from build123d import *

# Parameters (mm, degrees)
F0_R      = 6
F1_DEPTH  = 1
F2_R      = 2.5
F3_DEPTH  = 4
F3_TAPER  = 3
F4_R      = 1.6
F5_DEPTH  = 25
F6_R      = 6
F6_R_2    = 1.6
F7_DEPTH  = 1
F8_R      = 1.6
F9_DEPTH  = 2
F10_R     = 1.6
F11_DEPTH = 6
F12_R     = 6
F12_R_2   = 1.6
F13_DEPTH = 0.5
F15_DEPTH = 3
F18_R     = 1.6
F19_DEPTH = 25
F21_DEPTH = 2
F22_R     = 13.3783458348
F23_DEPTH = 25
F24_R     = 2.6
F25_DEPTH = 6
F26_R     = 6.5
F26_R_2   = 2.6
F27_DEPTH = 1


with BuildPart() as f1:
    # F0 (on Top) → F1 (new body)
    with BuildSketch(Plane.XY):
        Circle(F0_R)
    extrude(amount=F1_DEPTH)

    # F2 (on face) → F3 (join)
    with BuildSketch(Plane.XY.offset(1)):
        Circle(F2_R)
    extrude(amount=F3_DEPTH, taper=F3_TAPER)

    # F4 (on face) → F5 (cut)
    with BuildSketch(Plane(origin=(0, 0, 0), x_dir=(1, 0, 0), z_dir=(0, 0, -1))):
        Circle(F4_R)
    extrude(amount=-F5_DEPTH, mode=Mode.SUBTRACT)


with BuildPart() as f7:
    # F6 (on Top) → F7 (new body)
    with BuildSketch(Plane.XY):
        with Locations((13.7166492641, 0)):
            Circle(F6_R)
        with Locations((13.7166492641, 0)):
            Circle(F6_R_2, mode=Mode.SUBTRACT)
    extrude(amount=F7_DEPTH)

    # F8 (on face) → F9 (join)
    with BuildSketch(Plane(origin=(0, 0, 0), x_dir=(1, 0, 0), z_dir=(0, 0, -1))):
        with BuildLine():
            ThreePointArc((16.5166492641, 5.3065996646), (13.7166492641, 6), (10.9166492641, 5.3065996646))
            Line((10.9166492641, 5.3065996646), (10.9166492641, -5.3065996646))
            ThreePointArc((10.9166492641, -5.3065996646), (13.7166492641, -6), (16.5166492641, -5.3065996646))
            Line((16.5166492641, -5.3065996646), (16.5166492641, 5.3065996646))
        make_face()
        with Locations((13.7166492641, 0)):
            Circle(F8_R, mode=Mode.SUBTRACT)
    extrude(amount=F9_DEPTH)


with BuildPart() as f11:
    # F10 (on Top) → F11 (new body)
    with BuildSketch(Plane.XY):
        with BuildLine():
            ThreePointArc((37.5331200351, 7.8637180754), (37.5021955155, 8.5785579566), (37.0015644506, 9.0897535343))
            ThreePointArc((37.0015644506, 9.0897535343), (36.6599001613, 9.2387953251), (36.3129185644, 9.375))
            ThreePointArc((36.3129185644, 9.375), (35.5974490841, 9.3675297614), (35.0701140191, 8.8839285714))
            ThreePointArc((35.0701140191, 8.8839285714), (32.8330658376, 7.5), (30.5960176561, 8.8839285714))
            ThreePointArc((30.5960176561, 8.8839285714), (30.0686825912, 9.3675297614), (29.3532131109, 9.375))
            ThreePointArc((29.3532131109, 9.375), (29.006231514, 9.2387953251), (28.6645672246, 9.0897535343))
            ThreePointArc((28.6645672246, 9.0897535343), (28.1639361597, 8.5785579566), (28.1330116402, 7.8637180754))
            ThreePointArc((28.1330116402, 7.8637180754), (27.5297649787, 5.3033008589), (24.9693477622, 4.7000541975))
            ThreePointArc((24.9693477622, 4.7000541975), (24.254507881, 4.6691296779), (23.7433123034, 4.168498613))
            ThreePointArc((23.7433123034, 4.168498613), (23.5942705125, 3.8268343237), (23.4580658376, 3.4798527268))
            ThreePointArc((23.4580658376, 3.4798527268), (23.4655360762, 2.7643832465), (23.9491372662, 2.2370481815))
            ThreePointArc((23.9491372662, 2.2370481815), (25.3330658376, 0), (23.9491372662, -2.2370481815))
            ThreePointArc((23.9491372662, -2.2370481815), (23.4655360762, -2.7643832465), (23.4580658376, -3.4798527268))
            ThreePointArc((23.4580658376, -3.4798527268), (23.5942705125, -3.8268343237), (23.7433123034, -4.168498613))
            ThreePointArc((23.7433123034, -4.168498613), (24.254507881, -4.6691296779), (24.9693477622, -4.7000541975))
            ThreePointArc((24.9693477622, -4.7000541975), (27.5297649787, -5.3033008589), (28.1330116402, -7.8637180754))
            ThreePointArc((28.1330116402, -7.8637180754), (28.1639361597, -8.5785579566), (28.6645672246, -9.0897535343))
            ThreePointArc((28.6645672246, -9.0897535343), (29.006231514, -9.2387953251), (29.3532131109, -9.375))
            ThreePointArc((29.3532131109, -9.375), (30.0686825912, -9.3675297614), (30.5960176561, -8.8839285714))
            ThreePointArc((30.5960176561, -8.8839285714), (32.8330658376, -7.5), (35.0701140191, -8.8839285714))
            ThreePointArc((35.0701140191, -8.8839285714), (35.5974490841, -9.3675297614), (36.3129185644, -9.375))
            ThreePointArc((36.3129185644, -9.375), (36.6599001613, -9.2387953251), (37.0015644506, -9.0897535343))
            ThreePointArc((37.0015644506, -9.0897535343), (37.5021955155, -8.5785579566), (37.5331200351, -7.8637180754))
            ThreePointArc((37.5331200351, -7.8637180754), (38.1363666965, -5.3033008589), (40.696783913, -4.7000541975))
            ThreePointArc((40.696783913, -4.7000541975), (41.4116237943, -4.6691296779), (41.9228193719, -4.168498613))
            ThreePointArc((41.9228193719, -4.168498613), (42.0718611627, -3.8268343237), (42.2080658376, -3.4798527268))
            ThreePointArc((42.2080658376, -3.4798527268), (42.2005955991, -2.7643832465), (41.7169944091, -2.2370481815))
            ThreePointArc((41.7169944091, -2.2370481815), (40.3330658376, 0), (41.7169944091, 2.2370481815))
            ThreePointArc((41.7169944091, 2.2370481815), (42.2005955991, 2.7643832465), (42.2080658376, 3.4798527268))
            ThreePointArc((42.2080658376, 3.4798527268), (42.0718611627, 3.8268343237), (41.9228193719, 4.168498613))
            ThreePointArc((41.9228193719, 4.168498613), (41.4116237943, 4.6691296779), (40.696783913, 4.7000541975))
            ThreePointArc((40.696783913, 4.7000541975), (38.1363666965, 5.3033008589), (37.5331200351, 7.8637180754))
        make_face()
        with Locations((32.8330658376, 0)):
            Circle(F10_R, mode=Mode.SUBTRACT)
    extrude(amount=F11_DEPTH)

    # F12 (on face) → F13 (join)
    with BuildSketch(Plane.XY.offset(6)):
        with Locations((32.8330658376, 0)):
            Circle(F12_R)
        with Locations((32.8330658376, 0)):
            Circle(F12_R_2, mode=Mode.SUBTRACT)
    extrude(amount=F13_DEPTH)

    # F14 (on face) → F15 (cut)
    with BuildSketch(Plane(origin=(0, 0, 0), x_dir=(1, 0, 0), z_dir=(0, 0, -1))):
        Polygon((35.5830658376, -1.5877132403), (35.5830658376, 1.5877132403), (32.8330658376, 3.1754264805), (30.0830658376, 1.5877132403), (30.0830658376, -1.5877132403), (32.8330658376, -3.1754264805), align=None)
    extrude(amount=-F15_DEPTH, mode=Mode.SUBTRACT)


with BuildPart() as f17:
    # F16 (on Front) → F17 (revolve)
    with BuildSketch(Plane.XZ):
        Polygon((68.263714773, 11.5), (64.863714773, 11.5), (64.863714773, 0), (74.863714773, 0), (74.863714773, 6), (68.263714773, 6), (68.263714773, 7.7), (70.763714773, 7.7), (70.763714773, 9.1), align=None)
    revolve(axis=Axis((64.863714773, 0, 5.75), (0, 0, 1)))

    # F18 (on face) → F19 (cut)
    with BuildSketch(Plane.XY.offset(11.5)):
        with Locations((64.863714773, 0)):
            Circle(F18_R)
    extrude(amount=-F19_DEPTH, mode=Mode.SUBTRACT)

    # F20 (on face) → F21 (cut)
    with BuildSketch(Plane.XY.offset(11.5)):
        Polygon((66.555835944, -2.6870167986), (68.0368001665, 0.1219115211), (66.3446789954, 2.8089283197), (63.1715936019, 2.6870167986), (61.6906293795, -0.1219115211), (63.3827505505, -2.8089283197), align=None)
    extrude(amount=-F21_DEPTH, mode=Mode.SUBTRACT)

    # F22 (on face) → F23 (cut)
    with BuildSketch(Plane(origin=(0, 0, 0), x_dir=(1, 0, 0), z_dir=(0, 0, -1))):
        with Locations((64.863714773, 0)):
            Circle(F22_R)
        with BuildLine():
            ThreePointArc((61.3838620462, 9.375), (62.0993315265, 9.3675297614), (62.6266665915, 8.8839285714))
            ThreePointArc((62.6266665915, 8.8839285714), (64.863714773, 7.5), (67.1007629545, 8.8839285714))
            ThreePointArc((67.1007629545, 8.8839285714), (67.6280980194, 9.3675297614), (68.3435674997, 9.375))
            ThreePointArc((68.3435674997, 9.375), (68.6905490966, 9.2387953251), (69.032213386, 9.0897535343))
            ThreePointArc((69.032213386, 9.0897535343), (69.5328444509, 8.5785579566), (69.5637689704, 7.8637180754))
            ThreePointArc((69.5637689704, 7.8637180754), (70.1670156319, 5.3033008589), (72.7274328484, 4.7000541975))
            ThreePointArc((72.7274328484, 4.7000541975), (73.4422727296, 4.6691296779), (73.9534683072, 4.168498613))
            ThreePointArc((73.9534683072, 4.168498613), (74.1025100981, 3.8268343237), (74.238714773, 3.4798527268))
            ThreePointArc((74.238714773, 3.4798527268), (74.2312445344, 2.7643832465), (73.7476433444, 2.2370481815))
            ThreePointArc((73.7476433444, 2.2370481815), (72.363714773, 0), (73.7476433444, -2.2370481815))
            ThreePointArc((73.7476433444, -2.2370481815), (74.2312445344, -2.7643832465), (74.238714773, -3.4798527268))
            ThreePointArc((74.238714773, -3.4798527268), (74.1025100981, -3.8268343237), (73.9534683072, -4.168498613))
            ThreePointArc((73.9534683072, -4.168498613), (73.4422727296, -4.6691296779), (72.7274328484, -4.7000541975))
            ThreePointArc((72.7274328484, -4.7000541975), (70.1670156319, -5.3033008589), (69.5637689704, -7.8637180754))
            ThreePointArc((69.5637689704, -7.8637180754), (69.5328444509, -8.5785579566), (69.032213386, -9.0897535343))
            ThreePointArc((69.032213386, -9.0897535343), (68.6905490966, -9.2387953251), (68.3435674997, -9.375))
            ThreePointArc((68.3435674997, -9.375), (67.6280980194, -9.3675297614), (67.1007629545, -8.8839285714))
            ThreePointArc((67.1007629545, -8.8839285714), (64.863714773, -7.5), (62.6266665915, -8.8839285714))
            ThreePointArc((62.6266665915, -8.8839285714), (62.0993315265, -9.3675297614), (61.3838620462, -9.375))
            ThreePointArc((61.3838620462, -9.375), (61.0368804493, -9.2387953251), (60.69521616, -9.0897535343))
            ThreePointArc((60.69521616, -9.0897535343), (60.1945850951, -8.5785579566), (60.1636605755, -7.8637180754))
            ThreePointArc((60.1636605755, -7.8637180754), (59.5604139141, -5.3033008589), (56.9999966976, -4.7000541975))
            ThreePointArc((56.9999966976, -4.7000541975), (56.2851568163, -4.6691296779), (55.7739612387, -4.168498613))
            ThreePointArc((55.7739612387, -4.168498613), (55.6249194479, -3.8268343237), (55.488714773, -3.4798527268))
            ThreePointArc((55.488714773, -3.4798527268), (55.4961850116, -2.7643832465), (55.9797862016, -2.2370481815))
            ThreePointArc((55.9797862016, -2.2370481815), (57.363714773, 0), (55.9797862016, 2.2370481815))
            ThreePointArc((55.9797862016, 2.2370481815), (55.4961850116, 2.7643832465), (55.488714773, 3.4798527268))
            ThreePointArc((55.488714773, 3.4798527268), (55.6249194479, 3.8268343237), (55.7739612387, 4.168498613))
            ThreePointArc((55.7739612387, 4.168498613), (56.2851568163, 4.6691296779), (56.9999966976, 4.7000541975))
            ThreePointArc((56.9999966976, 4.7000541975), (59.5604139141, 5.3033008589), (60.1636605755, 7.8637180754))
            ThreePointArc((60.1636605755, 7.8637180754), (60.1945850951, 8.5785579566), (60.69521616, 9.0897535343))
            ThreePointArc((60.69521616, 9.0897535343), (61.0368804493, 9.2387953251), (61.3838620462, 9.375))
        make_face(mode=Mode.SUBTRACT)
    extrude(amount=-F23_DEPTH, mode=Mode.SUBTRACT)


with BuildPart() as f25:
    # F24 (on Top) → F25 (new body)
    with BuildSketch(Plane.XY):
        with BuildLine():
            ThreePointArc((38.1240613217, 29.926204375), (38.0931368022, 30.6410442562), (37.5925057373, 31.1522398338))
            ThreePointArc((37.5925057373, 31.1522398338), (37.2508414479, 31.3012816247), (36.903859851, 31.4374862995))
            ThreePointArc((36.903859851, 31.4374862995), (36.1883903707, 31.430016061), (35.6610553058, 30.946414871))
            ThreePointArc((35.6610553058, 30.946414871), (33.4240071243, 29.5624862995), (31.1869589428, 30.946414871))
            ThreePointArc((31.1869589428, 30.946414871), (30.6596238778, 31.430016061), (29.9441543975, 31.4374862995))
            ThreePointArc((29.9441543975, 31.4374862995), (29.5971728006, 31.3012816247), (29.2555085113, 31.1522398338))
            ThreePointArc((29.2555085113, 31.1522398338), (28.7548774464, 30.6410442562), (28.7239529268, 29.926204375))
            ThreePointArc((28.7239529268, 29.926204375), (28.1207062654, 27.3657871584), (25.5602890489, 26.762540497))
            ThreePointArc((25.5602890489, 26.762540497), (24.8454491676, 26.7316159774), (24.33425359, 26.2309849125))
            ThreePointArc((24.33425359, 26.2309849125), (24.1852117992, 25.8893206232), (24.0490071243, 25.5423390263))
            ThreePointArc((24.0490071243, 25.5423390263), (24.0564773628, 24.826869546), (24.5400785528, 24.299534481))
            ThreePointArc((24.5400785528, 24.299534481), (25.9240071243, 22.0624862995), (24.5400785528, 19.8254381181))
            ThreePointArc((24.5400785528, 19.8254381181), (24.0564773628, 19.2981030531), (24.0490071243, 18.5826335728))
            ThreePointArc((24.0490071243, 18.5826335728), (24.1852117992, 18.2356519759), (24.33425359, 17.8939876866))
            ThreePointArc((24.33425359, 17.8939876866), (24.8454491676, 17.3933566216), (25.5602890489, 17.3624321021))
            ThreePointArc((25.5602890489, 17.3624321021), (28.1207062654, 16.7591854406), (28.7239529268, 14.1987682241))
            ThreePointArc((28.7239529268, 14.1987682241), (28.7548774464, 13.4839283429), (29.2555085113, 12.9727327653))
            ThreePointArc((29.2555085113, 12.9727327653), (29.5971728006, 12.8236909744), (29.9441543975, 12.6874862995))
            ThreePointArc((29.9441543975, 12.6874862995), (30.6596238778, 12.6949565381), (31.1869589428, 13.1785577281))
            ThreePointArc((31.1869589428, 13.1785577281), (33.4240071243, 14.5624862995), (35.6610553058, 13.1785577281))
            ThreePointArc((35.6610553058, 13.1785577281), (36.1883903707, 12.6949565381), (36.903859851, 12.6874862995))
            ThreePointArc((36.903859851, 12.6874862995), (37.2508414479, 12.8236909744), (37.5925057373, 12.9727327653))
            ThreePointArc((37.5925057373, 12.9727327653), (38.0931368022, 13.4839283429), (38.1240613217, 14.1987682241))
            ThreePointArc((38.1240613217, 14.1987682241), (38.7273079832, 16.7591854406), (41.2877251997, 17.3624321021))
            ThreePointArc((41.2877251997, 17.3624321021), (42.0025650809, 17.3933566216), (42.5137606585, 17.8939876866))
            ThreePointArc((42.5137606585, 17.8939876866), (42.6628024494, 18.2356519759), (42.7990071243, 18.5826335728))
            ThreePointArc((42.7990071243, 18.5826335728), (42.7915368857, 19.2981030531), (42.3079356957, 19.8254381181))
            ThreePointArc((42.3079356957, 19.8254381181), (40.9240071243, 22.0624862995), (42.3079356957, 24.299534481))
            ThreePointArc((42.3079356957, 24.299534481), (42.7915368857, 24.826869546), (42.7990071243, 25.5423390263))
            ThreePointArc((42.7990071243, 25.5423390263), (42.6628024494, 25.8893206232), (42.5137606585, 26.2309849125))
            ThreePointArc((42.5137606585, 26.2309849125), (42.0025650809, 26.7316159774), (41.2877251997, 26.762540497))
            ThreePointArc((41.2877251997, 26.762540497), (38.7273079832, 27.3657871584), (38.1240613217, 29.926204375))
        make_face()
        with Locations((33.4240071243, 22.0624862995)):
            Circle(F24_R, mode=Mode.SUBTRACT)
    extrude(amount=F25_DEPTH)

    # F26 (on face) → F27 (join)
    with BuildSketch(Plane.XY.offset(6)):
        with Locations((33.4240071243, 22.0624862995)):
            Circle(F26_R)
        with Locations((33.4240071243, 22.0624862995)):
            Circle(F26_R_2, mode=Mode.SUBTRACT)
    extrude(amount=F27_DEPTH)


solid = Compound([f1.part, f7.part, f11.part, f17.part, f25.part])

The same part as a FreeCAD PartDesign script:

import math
import FreeCAD as App
import Part
import Sketcher

V = App.Vector
Q = App.Units.Quantity


def add_polygon(sketch, points):
    """Adds a closed chain of lines whose ends are joined by coincident constraints."""
    first, n = sketch.GeometryCount, len(points)
    for a, b in zip(points, points[1:] + points[:1]):
        sketch.addGeometry(Part.LineSegment(App.Vector(*a, 0), App.Vector(*b, 0)), False)
    for i in range(n):
        sketch.addConstraint(Sketcher.Constraint("Coincident", first + i, 2, first + (i + 1) % n, 1))

doc = App.newDocument("Part")
body = doc.addObject("PartDesign::Body", "Body")

# Sketch on XY plane
sketch1 = body.newObject("Sketcher::SketchObject", "Sketch")
sketch1.AttachmentSupport = (doc.getObject("XY_Plane"), [""])
sketch1.MapMode = "FlatFace"
sketch1.addGeometry(Part.Circle(V(0, 0, 0), V(0, 0, 1), 6), False)
sketch1.addConstraint([
    Sketcher.Constraint("Coincident", 0, 3, -1, 1),
    Sketcher.Constraint("Diameter", 0, 12.0),
])
pad1 = body.newObject("PartDesign::Pad", "Pad")
pad1.Profile = sketch1
pad1.Length = 1

# Sketch on XY plane
sketch2 = body.newObject("Sketcher::SketchObject", "Sketch001")
sketch2.AttachmentSupport = (doc.getObject("XY_Plane"), [""])
sketch2.MapMode = "FlatFace"
sketch2.AttachmentOffset = App.Placement(V(0, 0, 1), App.Rotation())
sketch2.addGeometry(Part.Circle(V(0, 0, 0), V(0, 0, 1), 2.5), False)
sketch2.addConstraint([
    Sketcher.Constraint("Coincident", 0, 3, -1, 1),
    Sketcher.Constraint("Diameter", 0, 5.0),
])
pad2 = body.newObject("PartDesign::Pad", "Pad001")
pad2.Profile = sketch2
pad2.Length = 4
pad2.TaperAngle = -3

# Sketch on XY plane
sketch3 = body.newObject("Sketcher::SketchObject", "Sketch002")
sketch3.AttachmentSupport = (doc.getObject("XY_Plane"), [""])
sketch3.MapMode = "FlatFace"
sketch3.addGeometry(Part.Circle(V(0, 0, 0), V(0, 0, 1), 1.6), False)
sketch3.addConstraint([
    Sketcher.Constraint("Coincident", 0, 3, -1, 1),
    Sketcher.Constraint("Diameter", 0, 3.2),
])
pocket1 = body.newObject("PartDesign::Pocket", "Pocket")
pocket1.Profile = sketch3
pocket1.Length = 25
pocket1.Reversed = True
body2 = doc.addObject("PartDesign::Body", "Body001")

# Sketch on XY plane
sketch4 = body2.newObject("Sketcher::SketchObject", "Sketch003")
sketch4.AttachmentSupport = (doc.getObject("XY_Plane001"), [""])
sketch4.MapMode = "FlatFace"
sketch4.addGeometry([
    Part.Circle(V(13.716649, 0, 0), V(0, 0, 1), 6),
    Part.Circle(V(13.716649, 0, 0), V(0, 0, 1), 1.6),
], False)
sketch4.addConstraint([
    Sketcher.Constraint("Coincident", 1, 3, 0, 3),
    Sketcher.Constraint("PointOnObject", 0, 3, -1),
    Sketcher.Constraint("Diameter", 0, 12.0),
    Sketcher.Constraint("Diameter", 1, 3.2),
    Sketcher.Constraint("DistanceX", -1, 1, 0, 3, 13.716649),
])
pad3 = body2.newObject("PartDesign::Pad", "Pad002")
pad3.Profile = sketch4
pad3.Length = 1

# Sketch on XY plane
sketch5 = body2.newObject("Sketcher::SketchObject", "Sketch004")
sketch5.AttachmentSupport = (doc.getObject("XY_Plane001"), [""])
sketch5.MapMode = "FlatFace"
sketch5.addGeometry([
    Part.ArcOfCircle(Part.Circle(V(13.716649, 0, 0), V(0, 0, 1), 6), math.radians(-117.818139), math.radians(-62.181861)),  # 0
    Part.LineSegment(V(10.916649, -5.3066, 0), V(10.916649, 5.3066, 0)),  # 1
    Part.ArcOfCircle(Part.Circle(V(13.716649, 0, 0), V(0, 0, 1), 6), math.radians(62.181861), math.radians(117.818139)),  # 2
    Part.LineSegment(V(16.516649, 5.3066, 0), V(16.516649, -5.3066, 0)),  # 3
    Part.Circle(V(13.716649, 0, 0), V(0, 0, 1), 1.6),  # 4
], False)
sketch5.addConstraint([
    Sketcher.Constraint("Coincident", 0, 1, 1, 1),
    Sketcher.Constraint("Coincident", 1, 2, 2, 2),
    Sketcher.Constraint("Coincident", 2, 1, 3, 1),
    Sketcher.Constraint("Coincident", 3, 2, 0, 2),
    Sketcher.Constraint("Vertical", 1),
    Sketcher.Constraint("Vertical", 3),
    Sketcher.Constraint("Coincident", 2, 3, 0, 3),
    Sketcher.Constraint("Coincident", 4, 3, 0, 3),
    Sketcher.Constraint("Equal", 0, 2),
    Sketcher.Constraint("PointOnObject", 0, 3, -1),
    Sketcher.Constraint("Horizontal", 1, 2, 2, 1),
    Sketcher.Constraint("Radius", 0, 6.0),
    Sketcher.Constraint("Diameter", 4, 3.2),
    Sketcher.Constraint("DistanceX", 0, 1, 0, 3, 2.8),
    Sketcher.Constraint("DistanceX", -1, 1, 0, 3, 13.716649),
])
pad4 = body2.newObject("PartDesign::Pad", "Pad003")
pad4.Profile = sketch5
pad4.Length = 2
pad4.Reversed = True
body3 = doc.addObject("PartDesign::Body", "Body002")

# Sketch on XY plane
sketch6 = body3.newObject("Sketcher::SketchObject", "Sketch005")
sketch6.AttachmentSupport = (doc.getObject("XY_Plane002"), [""])
sketch6.MapMode = "FlatFace"
sketch6.addGeometry([
    Part.ArcOfCircle(Part.Circle(V(36.584715, 8.180778, 0), V(0, 0, 1), 1), math.radians(-18.485225), math.radians(65.364135)),  # 0
    Part.ArcOfCircle(Part.Circle(V(32.833066, 0, 0), V(0, 0, 1), 10), math.radians(65.364135), math.radians(69.635865)),  # 1
    Part.ArcOfCircle(Part.Circle(V(35.964933, 8.4375, 0), V(0, 0, 1), 1), math.radians(69.635865), math.radians(153.485225)),  # 2
    Part.ArcOfCircle(Part.Circle(V(32.833066, 10, 0), V(0, 0, 1), 2.5), math.radians(-153.485225), math.radians(-26.514775)),  # 3
    Part.ArcOfCircle(Part.Circle(V(29.701198, 8.4375, 0), V(0, 0, 1), 1), math.radians(26.514775), math.radians(110.364135)),  # 4
    Part.ArcOfCircle(Part.Circle(V(32.833066, 0, 0), V(0, 0, 1), 10), math.radians(110.364135), math.radians(114.635865)),  # 5
    Part.ArcOfCircle(Part.Circle(V(29.081417, 8.180778, 0), V(0, 0, 1), 1), math.radians(114.635865), math.radians(198.485225)),  # 6
    Part.ArcOfCircle(Part.Circle(V(25.761998, 7.071068, 0), V(0, 0, 1), 2.5), math.radians(-108.485225), math.radians(18.485225)),  # 7
    Part.ArcOfCircle(Part.Circle(V(24.652288, 3.751649, 0), V(0, 0, 1), 1), math.radians(71.514775), math.radians(155.364135)),  # 8
    Part.ArcOfCircle(Part.Circle(V(32.833066, 0, 0), V(0, 0, 1), 10), math.radians(155.364135), math.radians(159.635865)),  # 9
    Part.ArcOfCircle(Part.Circle(V(24.395566, 3.131867, 0), V(0, 0, 1), 1), math.radians(159.635865), math.radians(243.485225)),  # 10
    Part.ArcOfCircle(Part.Circle(V(22.833066, 0, 0), V(0, 0, 1), 2.5), math.radians(-63.485225), math.radians(63.485225)),  # 11
    Part.ArcOfCircle(Part.Circle(V(24.395566, -3.131867, 0), V(0, 0, 1), 1), math.radians(116.514775), math.radians(200.364135)),  # 12
    Part.ArcOfCircle(Part.Circle(V(32.833066, 0, 0), V(0, 0, 1), 10), math.radians(-159.635865), math.radians(-155.364135)),  # 13
    Part.ArcOfCircle(Part.Circle(V(24.652288, -3.751649, 0), V(0, 0, 1), 1), math.radians(-155.364135), math.radians(-71.514775)),  # 14
    Part.ArcOfCircle(Part.Circle(V(25.761998, -7.071068, 0), V(0, 0, 1), 2.5), math.radians(-18.485225), math.radians(108.485225)),  # 15
    Part.ArcOfCircle(Part.Circle(V(29.081417, -8.180778, 0), V(0, 0, 1), 1), math.radians(161.514775), math.radians(245.364135)),  # 16
    Part.ArcOfCircle(Part.Circle(V(32.833066, 0, 0), V(0, 0, 1), 10), math.radians(-114.635865), math.radians(-110.364135)),  # 17
    Part.ArcOfCircle(Part.Circle(V(29.701198, -8.4375, 0), V(0, 0, 1), 1), math.radians(-110.364135), math.radians(-26.514775)),  # 18
    Part.ArcOfCircle(Part.Circle(V(32.833066, -10, 0), V(0, 0, 1), 2.5), math.radians(26.514775), math.radians(153.485225)),  # 19
    Part.ArcOfCircle(Part.Circle(V(35.964933, -8.4375, 0), V(0, 0, 1), 1), math.radians(-153.485225), math.radians(-69.635865)),  # 20
    Part.ArcOfCircle(Part.Circle(V(32.833066, 0, 0), V(0, 0, 1), 10), math.radians(-69.635865), math.radians(-65.364135)),  # 21
    Part.ArcOfCircle(Part.Circle(V(36.584715, -8.180778, 0), V(0, 0, 1), 1), math.radians(-65.364135), math.radians(18.485225)),  # 22
    Part.ArcOfCircle(Part.Circle(V(39.904134, -7.071068, 0), V(0, 0, 1), 2.5), math.radians(71.514775), math.radians(198.485225)),  # 23
    Part.ArcOfCircle(Part.Circle(V(41.013844, -3.751649, 0), V(0, 0, 1), 1), math.radians(-108.485225), math.radians(-24.635865)),  # 24
    Part.ArcOfCircle(Part.Circle(V(32.833066, 0, 0), V(0, 0, 1), 10), math.radians(-24.635865), math.radians(-20.364135)),  # 25
    Part.ArcOfCircle(Part.Circle(V(41.270566, -3.131867, 0), V(0, 0, 1), 1), math.radians(-20.364135), math.radians(63.485225)),  # 26
    Part.ArcOfCircle(Part.Circle(V(42.833066, 0, 0), V(0, 0, 1), 2.5), math.radians(116.514775), math.radians(243.485225)),  # 27
    Part.ArcOfCircle(Part.Circle(V(41.270566, 3.131867, 0), V(0, 0, 1), 1), math.radians(-63.485225), math.radians(20.364135)),  # 28
    Part.ArcOfCircle(Part.Circle(V(32.833066, 0, 0), V(0, 0, 1), 10), math.radians(20.364135), math.radians(24.635865)),  # 29
    Part.ArcOfCircle(Part.Circle(V(41.013844, 3.751649, 0), V(0, 0, 1), 1), math.radians(24.635865), math.radians(108.485225)),  # 30
    Part.ArcOfCircle(Part.Circle(V(39.904134, 7.071068, 0), V(0, 0, 1), 2.5), math.radians(161.514775), math.radians(288.485225)),  # 31
    Part.Circle(V(32.833066, 0, 0), V(0, 0, 1), 1.6),  # 32
], False)
sketch6.addConstraint([
    Sketcher.Constraint("Tangent", 0, 2, 1, 1),
    Sketcher.Constraint("Tangent", 1, 2, 2, 1),
    Sketcher.Constraint("Tangent", 2, 2, 3, 2),
    Sketcher.Constraint("Tangent", 3, 1, 4, 1),
    Sketcher.Constraint("Tangent", 4, 2, 5, 1),
    Sketcher.Constraint("Tangent", 5, 2, 6, 1),
    Sketcher.Constraint("Tangent", 6, 2, 7, 2),
    Sketcher.Constraint("Tangent", 7, 1, 8, 1),
    Sketcher.Constraint("Tangent", 8, 2, 9, 1),
    Sketcher.Constraint("Tangent", 9, 2, 10, 1),
    Sketcher.Constraint("Tangent", 10, 2, 11, 2),
    Sketcher.Constraint("Tangent", 11, 1, 12, 1),
    Sketcher.Constraint("Tangent", 12, 2, 13, 1),
    Sketcher.Constraint("Tangent", 13, 2, 14, 1),
    Sketcher.Constraint("Tangent", 14, 2, 15, 2),
    Sketcher.Constraint("Tangent", 15, 1, 16, 1),
    Sketcher.Constraint("Tangent", 16, 2, 17, 1),
    Sketcher.Constraint("Tangent", 17, 2, 18, 1),
    Sketcher.Constraint("Tangent", 18, 2, 19, 2),
    Sketcher.Constraint("Tangent", 19, 1, 20, 1),
    Sketcher.Constraint("Tangent", 20, 2, 21, 1),
    Sketcher.Constraint("Tangent", 21, 2, 22, 1),
    Sketcher.Constraint("Tangent", 22, 2, 23, 2),
    Sketcher.Constraint("Tangent", 23, 1, 24, 1),
    Sketcher.Constraint("Tangent", 24, 2, 25, 1),
    Sketcher.Constraint("Tangent", 25, 2, 26, 1),
    Sketcher.Constraint("Tangent", 26, 2, 27, 2),
    Sketcher.Constraint("Tangent", 27, 1, 28, 1),
    Sketcher.Constraint("Tangent", 28, 2, 29, 1),
    Sketcher.Constraint("Tangent", 29, 2, 30, 1),
    Sketcher.Constraint("Tangent", 30, 2, 31, 2),
    Sketcher.Constraint("Tangent", 31, 1, 0, 1),
    Sketcher.Constraint("Coincident", 5, 3, 1, 3),
    Sketcher.Constraint("Coincident", 9, 3, 1, 3),
    Sketcher.Constraint("Coincident", 13, 3, 1, 3),
    Sketcher.Constraint("Coincident", 17, 3, 1, 3),
    Sketcher.Constraint("Coincident", 21, 3, 1, 3),
    Sketcher.Constraint("Coincident", 25, 3, 1, 3),
    Sketcher.Constraint("Coincident", 29, 3, 1, 3),
    Sketcher.Constraint("Coincident", 32, 3, 1, 3),
    Sketcher.Constraint("Equal", 0, 2),
    Sketcher.Constraint("Equal", 2, 4),
    Sketcher.Constraint("Equal", 1, 5),
    Sketcher.Constraint("Equal", 4, 6),
    Sketcher.Constraint("Equal", 3, 7),
    Sketcher.Constraint("Equal", 6, 8),
    Sketcher.Constraint("Equal", 5, 9),
    Sketcher.Constraint("Equal", 8, 10),
    Sketcher.Constraint("Equal", 7, 11),
    Sketcher.Constraint("Equal", 10, 12),
    Sketcher.Constraint("Equal", 9, 13),
    Sketcher.Constraint("Equal", 12, 14),
    Sketcher.Constraint("Equal", 11, 15),
    Sketcher.Constraint("Equal", 14, 16),
    Sketcher.Constraint("Equal", 13, 17),
    Sketcher.Constraint("Equal", 16, 18),
    Sketcher.Constraint("Equal", 15, 19),
    Sketcher.Constraint("Equal", 18, 20),
    Sketcher.Constraint("Equal", 17, 21),
    Sketcher.Constraint("Equal", 20, 22),
    Sketcher.Constraint("Equal", 19, 23),
    Sketcher.Constraint("Equal", 22, 24),
    Sketcher.Constraint("Equal", 21, 25),
    Sketcher.Constraint("Equal", 24, 26),
    Sketcher.Constraint("Equal", 23, 27),
    Sketcher.Constraint("Equal", 26, 28),
    Sketcher.Constraint("Equal", 25, 29),
    Sketcher.Constraint("Equal", 28, 30),
    Sketcher.Constraint("Equal", 27, 31),
    Sketcher.Constraint("Symmetric", 10, 3, 12, 3, -1),
    Sketcher.Constraint("Symmetric", 7, 3, 15, 3, -1),
    Sketcher.Constraint("Symmetric", 3, 3, 19, 3, -1),
    Sketcher.Constraint("Symmetric", 23, 3, 31, 3, -1),
    Sketcher.Constraint("PointOnObject", 27, 3, -1),
    Sketcher.Constraint("Horizontal", 2, 3, 4, 3),
    Sketcher.Constraint("Horizontal", 0, 3, 6, 3),
    Sketcher.Constraint("Horizontal", 15, 3, 23, 3),
    Sketcher.Constraint("Horizontal", 12, 3, 26, 3),
    Sketcher.Constraint("Radius", 0, 1.0),
    Sketcher.Constraint("Radius", 1, 10.0),
    Sketcher.Constraint("Diameter", 32, 3.2),
    Sketcher.Constraint("Radius", 3, 2.5),
    Sketcher.Constraint("DistanceY", -1, 1, 3, 3, 10.0),
    Sketcher.Constraint("DistanceX", -1, 1, 7, 3, 25.761998),
    Sketcher.Constraint("DistanceX", -1, 1, 4, 3, 29.701198),
    Sketcher.Constraint("DistanceY", -1, 1, 8, 2, 4.168499),
    Sketcher.Constraint("DistanceY", -1, 1, 10, 2, 2.237048),
])
pad5 = body3.newObject("PartDesign::Pad", "Pad004")
pad5.Profile = sketch6
pad5.Length = 6

# Sketch on XY plane
sketch7 = body3.newObject("Sketcher::SketchObject", "Sketch006")
sketch7.AttachmentSupport = (doc.getObject("XY_Plane002"), [""])
sketch7.MapMode = "FlatFace"
sketch7.AttachmentOffset = App.Placement(V(0, 0, 6), App.Rotation())
sketch7.addGeometry([
    Part.Circle(V(32.833066, 0, 0), V(0, 0, 1), 6),
    Part.Circle(V(32.833066, 0, 0), V(0, 0, 1), 1.6),
], False)
sketch7.addConstraint([
    Sketcher.Constraint("Coincident", 1, 3, 0, 3),
    Sketcher.Constraint("PointOnObject", 0, 3, -1),
    Sketcher.Constraint("Diameter", 0, 12.0),
    Sketcher.Constraint("Diameter", 1, 3.2),
    Sketcher.Constraint("DistanceX", -1, 1, 0, 3, 32.833066),
])
pad6 = body3.newObject("PartDesign::Pad", "Pad005")
pad6.Profile = sketch7
pad6.Length = 0.5

# Sketch on XY plane
sketch8 = body3.newObject("Sketcher::SketchObject", "Sketch007")
sketch8.AttachmentSupport = (doc.getObject("XY_Plane002"), [""])
sketch8.MapMode = "FlatFace"
add_polygon(sketch8, [(35.583066, 1.587713), (35.583066, -1.587713), (32.833066, -3.175426), (30.083066, -1.587713), (30.083066, 1.587713), (32.833066, 3.175426)])  # lines 0-5
sketch8.addConstraint([
    Sketcher.Constraint("Vertical", 0),
    Sketcher.Constraint("Vertical", 3),
    Sketcher.Constraint("Symmetric", 1, 2, 4, 2, -1),
    Sketcher.Constraint("Parallel", 1, 4),
    Sketcher.Constraint("Parallel", 2, 5),
    Sketcher.Constraint("Horizontal", 0, 2, 2, 2),
    Sketcher.Constraint("Horizontal", 3, 2, 5, 2),
    Sketcher.Constraint("Angle", 1, Q("-150 deg")),
    Sketcher.Constraint("DistanceX", 2, 2, 0, 2, 5.5),
    Sketcher.Constraint("DistanceY", 0, 2, 0, 1, 3.175426),
    Sketcher.Constraint("DistanceX", -1, 1, 0, 2, 35.583066),
])
pocket2 = body3.newObject("PartDesign::Pocket", "Pocket001")
pocket2.Profile = sketch8
pocket2.Length = 3
pocket2.Reversed = True
body4 = doc.addObject("PartDesign::Body", "Body003")

# Sketch on XZ plane
sketch9 = body4.newObject("Sketcher::SketchObject", "Sketch008")
sketch9.AttachmentSupport = (doc.getObject("XZ_Plane003"), [""])
sketch9.MapMode = "FlatFace"
add_polygon(sketch9, [(68.263715, 11.5), (64.863715, 11.5), (64.863715, 0), (74.863715, 0), (74.863715, 6), (68.263715, 6), (68.263715, 7.7), (70.763715, 7.7), (70.763715, 9.1)])  # lines 0-8
sketch9.addGeometry(Part.LineSegment(V(64.863715, 0, 0), V(64.863715, 11.5, 0)), True)  # axis
sketch9.addConstraint([
    Sketcher.Constraint("Horizontal", 0),
    Sketcher.Constraint("Vertical", 1),
    Sketcher.Constraint("Horizontal", 2),
    Sketcher.Constraint("Vertical", 3),
    Sketcher.Constraint("Horizontal", 4),
    Sketcher.Constraint("Vertical", 5),
    Sketcher.Constraint("Horizontal", 6),
    Sketcher.Constraint("Vertical", 7),
    Sketcher.Constraint("Vertical", 9),
    Sketcher.Constraint("Coincident", 9, 1, 1, 2),
    Sketcher.Constraint("PointOnObject", 1, 2, -1),
    Sketcher.Constraint("Horizontal", 8, 2, 9, 2),
    Sketcher.Constraint("Vertical", 5, 2, 8, 2),
    Sketcher.Constraint("DistanceX", 2, 1, 2, 2, 10.0),
    Sketcher.Constraint("DistanceY", 3, 1, 3, 2, 6.0),
    Sketcher.Constraint("DistanceX", 0, 2, 0, 1, 3.4),
    Sketcher.Constraint("DistanceX", 6, 1, 6, 2, 2.5),
    Sketcher.Constraint("DistanceY", 1, 2, 1, 1, 11.5),
    Sketcher.Constraint("DistanceY", 5, 1, 5, 2, 1.7),
    Sketcher.Constraint("DistanceY", 7, 1, 7, 2, 1.4),
    Sketcher.Constraint("DistanceX", -1, 1, 0, 2, 64.863715),
])
revolution = body4.newObject("PartDesign::Revolution", "Revolution")
revolution.Profile = sketch9
revolution.ReferenceAxis = (sketch9, ["Axis0"])
revolution.Angle = 360

# Sketch on XY plane
sketch10 = body4.newObject("Sketcher::SketchObject", "Sketch009")
sketch10.AttachmentSupport = (doc.getObject("XY_Plane003"), [""])
sketch10.MapMode = "FlatFace"
sketch10.AttachmentOffset = App.Placement(V(0, 0, 11.5), App.Rotation())
sketch10.addGeometry(Part.Circle(V(64.863715, 0, 0), V(0, 0, 1), 1.6), False)
sketch10.addConstraint([
    Sketcher.Constraint("PointOnObject", 0, 3, -1),
    Sketcher.Constraint("Diameter", 0, 3.2),
    Sketcher.Constraint("DistanceX", -1, 1, 0, 3, 64.863715),
])
pocket3 = body4.newObject("PartDesign::Pocket", "Pocket002")
pocket3.Profile = sketch10
pocket3.Length = 25

# Sketch on XY plane
sketch11 = body4.newObject("Sketcher::SketchObject", "Sketch010")
sketch11.AttachmentSupport = (doc.getObject("XY_Plane003"), [""])
sketch11.MapMode = "FlatFace"
sketch11.AttachmentOffset = App.Placement(V(0, 0, 11.5), App.Rotation())
add_polygon(sketch11, [(66.555836, -2.687017), (68.0368, 0.121912), (66.344679, 2.808928), (63.171594, 2.687017), (61.690629, -0.121912), (63.382751, -2.808928)])  # lines 0-5
sketch11.addConstraint([
    Sketcher.Constraint("Parallel", 0, 3),
    Sketcher.Constraint("Parallel", 1, 4),
    Sketcher.Constraint("Parallel", 2, 5),
    Sketcher.Constraint("Equal", 0, 1),
    Sketcher.Constraint("Equal", 1, 2),
    Sketcher.Constraint("Equal", 2, 3),
    Sketcher.Constraint("DistanceX", -1, 1, 0, 2, 68.0368),
    Sketcher.Constraint("DistanceY", -1, 1, 0, 2, 0.121912),
    Sketcher.Constraint("DistanceX", -1, 1, 1, 2, 66.344679),
    Sketcher.Constraint("DistanceY", -1, 1, 1, 2, 2.808928),
    Sketcher.Constraint("DistanceX", -1, 1, 3, 2, 61.690629),
    Sketcher.Constraint("DistanceY", 3, 2, -1, 1, 0.121912),
])
pocket4 = body4.newObject("PartDesign::Pocket", "Pocket003")
pocket4.Profile = sketch11
pocket4.Length = 2

# Sketch on XY plane
sketch12 = body4.newObject("Sketcher::SketchObject", "Sketch011")
sketch12.AttachmentSupport = (doc.getObject("XY_Plane003"), [""])
sketch12.MapMode = "FlatFace"
sketch12.addGeometry([
    Part.Circle(V(64.863715, 0, 0), V(0, 0, 1), 13.378346),  # 0
    Part.ArcOfCircle(Part.Circle(V(64.863715, 0, 0), V(0, 0, 1), 10), math.radians(-114.635865), math.radians(-110.364135)),  # 1
    Part.ArcOfCircle(Part.Circle(V(61.731847, -8.4375, 0), V(0, 0, 1), 1), math.radians(-110.364135), math.radians(-26.514775)),  # 2
    Part.ArcOfCircle(Part.Circle(V(64.863715, -10, 0), V(0, 0, 1), 2.5), math.radians(26.514775), math.radians(153.485225)),  # 3
    Part.ArcOfCircle(Part.Circle(V(67.995582, -8.4375, 0), V(0, 0, 1), 1), math.radians(-153.485225), math.radians(-69.635865)),  # 4
    Part.ArcOfCircle(Part.Circle(V(64.863715, 0, 0), V(0, 0, 1), 10), math.radians(-69.635865), math.radians(-65.364135)),  # 5
    Part.ArcOfCircle(Part.Circle(V(68.615364, -8.180778, 0), V(0, 0, 1), 1), math.radians(-65.364135), math.radians(18.485225)),  # 6
    Part.ArcOfCircle(Part.Circle(V(71.934783, -7.071068, 0), V(0, 0, 1), 2.5), math.radians(71.514775), math.radians(198.485225)),  # 7
    Part.ArcOfCircle(Part.Circle(V(73.044493, -3.751649, 0), V(0, 0, 1), 1), math.radians(-108.485225), math.radians(-24.635865)),  # 8
    Part.ArcOfCircle(Part.Circle(V(64.863715, 0, 0), V(0, 0, 1), 10), math.radians(-24.635865), math.radians(-20.364135)),  # 9
    Part.ArcOfCircle(Part.Circle(V(73.301215, -3.131867, 0), V(0, 0, 1), 1), math.radians(-20.364135), math.radians(63.485225)),  # 10
    Part.ArcOfCircle(Part.Circle(V(74.863715, 0, 0), V(0, 0, 1), 2.5), math.radians(116.514775), math.radians(243.485225)),  # 11
    Part.ArcOfCircle(Part.Circle(V(73.301215, 3.131867, 0), V(0, 0, 1), 1), math.radians(-63.485225), math.radians(20.364135)),  # 12
    Part.ArcOfCircle(Part.Circle(V(64.863715, 0, 0), V(0, 0, 1), 10), math.radians(20.364135), math.radians(24.635865)),  # 13
    Part.ArcOfCircle(Part.Circle(V(73.044493, 3.751649, 0), V(0, 0, 1), 1), math.radians(24.635865), math.radians(108.485225)),  # 14
    Part.ArcOfCircle(Part.Circle(V(71.934783, 7.071068, 0), V(0, 0, 1), 2.5), math.radians(161.514775), math.radians(288.485225)),  # 15
    Part.ArcOfCircle(Part.Circle(V(68.615364, 8.180778, 0), V(0, 0, 1), 1), math.radians(-18.485225), math.radians(65.364135)),  # 16
    Part.ArcOfCircle(Part.Circle(V(64.863715, 0, 0), V(0, 0, 1), 10), math.radians(65.364135), math.radians(69.635865)),  # 17
    Part.ArcOfCircle(Part.Circle(V(67.995582, 8.4375, 0), V(0, 0, 1), 1), math.radians(69.635865), math.radians(153.485225)),  # 18
    Part.ArcOfCircle(Part.Circle(V(64.863715, 10, 0), V(0, 0, 1), 2.5), math.radians(-153.485225), math.radians(-26.514775)),  # 19
    Part.ArcOfCircle(Part.Circle(V(61.731847, 8.4375, 0), V(0, 0, 1), 1), math.radians(26.514775), math.radians(110.364135)),  # 20
    Part.ArcOfCircle(Part.Circle(V(64.863715, 0, 0), V(0, 0, 1), 10), math.radians(110.364135), math.radians(114.635865)),  # 21
    Part.ArcOfCircle(Part.Circle(V(61.112066, 8.180778, 0), V(0, 0, 1), 1), math.radians(114.635865), math.radians(198.485225)),  # 22
    Part.ArcOfCircle(Part.Circle(V(57.792647, 7.071068, 0), V(0, 0, 1), 2.5), math.radians(-108.485225), math.radians(18.485225)),  # 23
    Part.ArcOfCircle(Part.Circle(V(56.682937, 3.751649, 0), V(0, 0, 1), 1), math.radians(71.514775), math.radians(155.364135)),  # 24
    Part.ArcOfCircle(Part.Circle(V(64.863715, 0, 0), V(0, 0, 1), 10), math.radians(155.364135), math.radians(159.635865)),  # 25
    Part.ArcOfCircle(Part.Circle(V(56.426215, 3.131867, 0), V(0, 0, 1), 1), math.radians(159.635865), math.radians(243.485225)),  # 26
    Part.ArcOfCircle(Part.Circle(V(54.863715, 0, 0), V(0, 0, 1), 2.5), math.radians(-63.485225), math.radians(63.485225)),  # 27
    Part.ArcOfCircle(Part.Circle(V(56.426215, -3.131867, 0), V(0, 0, 1), 1), math.radians(116.514775), math.radians(200.364135)),  # 28
    Part.ArcOfCircle(Part.Circle(V(64.863715, 0, 0), V(0, 0, 1), 10), math.radians(-159.635865), math.radians(-155.364135)),  # 29
    Part.ArcOfCircle(Part.Circle(V(56.682937, -3.751649, 0), V(0, 0, 1), 1), math.radians(-155.364135), math.radians(-71.514775)),  # 30
    Part.ArcOfCircle(Part.Circle(V(57.792647, -7.071068, 0), V(0, 0, 1), 2.5), math.radians(-18.485225), math.radians(108.485225)),  # 31
    Part.ArcOfCircle(Part.Circle(V(61.112066, -8.180778, 0), V(0, 0, 1), 1), math.radians(161.514775), math.radians(245.364135)),  # 32
], False)
sketch12.addConstraint([
    Sketcher.Constraint("Tangent", 1, 2, 2, 1),
    Sketcher.Constraint("Tangent", 2, 2, 3, 2),
    Sketcher.Constraint("Tangent", 3, 1, 4, 1),
    Sketcher.Constraint("Tangent", 4, 2, 5, 1),
    Sketcher.Constraint("Tangent", 5, 2, 6, 1),
    Sketcher.Constraint("Tangent", 6, 2, 7, 2),
    Sketcher.Constraint("Tangent", 7, 1, 8, 1),
    Sketcher.Constraint("Tangent", 8, 2, 9, 1),
    Sketcher.Constraint("Tangent", 9, 2, 10, 1),
    Sketcher.Constraint("Tangent", 10, 2, 11, 2),
    Sketcher.Constraint("Tangent", 11, 1, 12, 1),
    Sketcher.Constraint("Tangent", 12, 2, 13, 1),
    Sketcher.Constraint("Tangent", 13, 2, 14, 1),
    Sketcher.Constraint("Tangent", 14, 2, 15, 2),
    Sketcher.Constraint("Tangent", 15, 1, 16, 1),
    Sketcher.Constraint("Tangent", 16, 2, 17, 1),
    Sketcher.Constraint("Tangent", 17, 2, 18, 1),
    Sketcher.Constraint("Tangent", 18, 2, 19, 2),
    Sketcher.Constraint("Tangent", 19, 1, 20, 1),
    Sketcher.Constraint("Tangent", 20, 2, 21, 1),
    Sketcher.Constraint("Tangent", 21, 2, 22, 1),
    Sketcher.Constraint("Tangent", 22, 2, 23, 2),
    Sketcher.Constraint("Tangent", 23, 1, 24, 1),
    Sketcher.Constraint("Tangent", 24, 2, 25, 1),
    Sketcher.Constraint("Tangent", 25, 2, 26, 1),
    Sketcher.Constraint("Tangent", 26, 2, 27, 2),
    Sketcher.Constraint("Tangent", 27, 1, 28, 1),
    Sketcher.Constraint("Tangent", 28, 2, 29, 1),
    Sketcher.Constraint("Tangent", 29, 2, 30, 1),
    Sketcher.Constraint("Tangent", 30, 2, 31, 2),
    Sketcher.Constraint("Tangent", 31, 1, 32, 1),
    Sketcher.Constraint("Tangent", 32, 2, 1, 1),
    Sketcher.Constraint("Coincident", 1, 3, 0, 3),
    Sketcher.Constraint("Coincident", 5, 3, 0, 3),
    Sketcher.Constraint("Coincident", 9, 3, 0, 3),
    Sketcher.Constraint("Coincident", 13, 3, 0, 3),
    Sketcher.Constraint("Coincident", 17, 3, 0, 3),
    Sketcher.Constraint("Coincident", 21, 3, 0, 3),
    Sketcher.Constraint("Coincident", 25, 3, 0, 3),
    Sketcher.Constraint("Coincident", 29, 3, 0, 3),
    Sketcher.Constraint("Equal", 2, 4),
    Sketcher.Constraint("Equal", 1, 5),
    Sketcher.Constraint("Equal", 4, 6),
    Sketcher.Constraint("Equal", 3, 7),
    Sketcher.Constraint("Equal", 6, 8),
    Sketcher.Constraint("Equal", 5, 9),
    Sketcher.Constraint("Equal", 8, 10),
    Sketcher.Constraint("Equal", 7, 11),
    Sketcher.Constraint("Equal", 10, 12),
    Sketcher.Constraint("Equal", 9, 13),
    Sketcher.Constraint("Equal", 12, 14),
    Sketcher.Constraint("Equal", 11, 15),
    Sketcher.Constraint("Equal", 14, 16),
    Sketcher.Constraint("Equal", 13, 17),
    Sketcher.Constraint("Equal", 16, 18),
    Sketcher.Constraint("Equal", 15, 19),
    Sketcher.Constraint("Equal", 18, 20),
    Sketcher.Constraint("Equal", 17, 21),
    Sketcher.Constraint("Equal", 20, 22),
    Sketcher.Constraint("Equal", 19, 23),
    Sketcher.Constraint("Equal", 22, 24),
    Sketcher.Constraint("Equal", 21, 25),
    Sketcher.Constraint("Equal", 24, 26),
    Sketcher.Constraint("Equal", 23, 27),
    Sketcher.Constraint("Equal", 26, 28),
    Sketcher.Constraint("Equal", 25, 29),
    Sketcher.Constraint("Equal", 28, 30),
    Sketcher.Constraint("Equal", 27, 31),
    Sketcher.Constraint("Equal", 30, 32),
    Sketcher.Constraint("Symmetric", 10, 3, 12, 3, -1),
    Sketcher.Constraint("Symmetric", 7, 3, 15, 3, -1),
    Sketcher.Constraint("Symmetric", 3, 3, 19, 3, -1),
    Sketcher.Constraint("Symmetric", 23, 3, 31, 3, -1),
    Sketcher.Constraint("PointOnObject", 27, 3, -1),
    Sketcher.Constraint("Horizontal", 2, 3, 4, 3),
    Sketcher.Constraint("Horizontal", 16, 3, 22, 3),
    Sketcher.Constraint("Horizontal", 15, 3, 23, 3),
    Sketcher.Constraint("Horizontal", 12, 3, 26, 3),
    Sketcher.Constraint("Radius", 1, 10.0),
    Sketcher.Constraint("Radius", 2, 1.0),
    Sketcher.Constraint("Radius", 3, 2.5),
    Sketcher.Constraint("DistanceY", 3, 3, -1, 1, 10.0),
    Sketcher.Constraint("Diameter", 0, 26.756692),
    Sketcher.Constraint("DistanceY", 8, 2, -1, 1, 4.168499),
    Sketcher.Constraint("DistanceY", 6, 3, -1, 1, 8.180778),
    Sketcher.Constraint("DistanceX", -1, 1, 6, 2, 69.563769),
    Sketcher.Constraint("DistanceY", 10, 2, -1, 1, 2.237048),
])
pocket5 = body4.newObject("PartDesign::Pocket", "Pocket004")
pocket5.Profile = sketch12
pocket5.Length = 25
pocket5.Reversed = True
body5 = doc.addObject("PartDesign::Body", "Body004")

# Sketch on XY plane
sketch13 = body5.newObject("Sketcher::SketchObject", "Sketch012")
sketch13.AttachmentSupport = (doc.getObject("XY_Plane004"), [""])
sketch13.MapMode = "FlatFace"
sketch13.addGeometry([
    Part.ArcOfCircle(Part.Circle(V(37.175656, 30.243264, 0), V(0, 0, 1), 1), math.radians(-18.485225), math.radians(65.364135)),  # 0
    Part.ArcOfCircle(Part.Circle(V(33.424007, 22.062486, 0), V(0, 0, 1), 10), math.radians(65.364135), math.radians(69.635865)),  # 1
    Part.ArcOfCircle(Part.Circle(V(36.555875, 30.499986, 0), V(0, 0, 1), 1), math.radians(69.635865), math.radians(153.485225)),  # 2
    Part.ArcOfCircle(Part.Circle(V(33.424007, 32.062486, 0), V(0, 0, 1), 2.5), math.radians(-153.485225), math.radians(-26.514775)),  # 3
    Part.ArcOfCircle(Part.Circle(V(30.29214, 30.499986, 0), V(0, 0, 1), 1), math.radians(26.514775), math.radians(110.364135)),  # 4
    Part.ArcOfCircle(Part.Circle(V(33.424007, 22.062486, 0), V(0, 0, 1), 10), math.radians(110.364135), math.radians(114.635865)),  # 5
    Part.ArcOfCircle(Part.Circle(V(29.672358, 30.243264, 0), V(0, 0, 1), 1), math.radians(114.635865), math.radians(198.485225)),  # 6
    Part.ArcOfCircle(Part.Circle(V(26.352939, 29.133554, 0), V(0, 0, 1), 2.5), math.radians(-108.485225), math.radians(18.485225)),  # 7
    Part.ArcOfCircle(Part.Circle(V(25.243229, 25.814135, 0), V(0, 0, 1), 1), math.radians(71.514775), math.radians(155.364135)),  # 8
    Part.ArcOfCircle(Part.Circle(V(33.424007, 22.062486, 0), V(0, 0, 1), 10), math.radians(155.364135), math.radians(159.635865)),  # 9
    Part.ArcOfCircle(Part.Circle(V(24.986507, 25.194354, 0), V(0, 0, 1), 1), math.radians(159.635865), math.radians(243.485225)),  # 10
    Part.ArcOfCircle(Part.Circle(V(23.424007, 22.062486, 0), V(0, 0, 1), 2.5), math.radians(-63.485225), math.radians(63.485225)),  # 11
    Part.ArcOfCircle(Part.Circle(V(24.986507, 18.930619, 0), V(0, 0, 1), 1), math.radians(116.514775), math.radians(200.364135)),  # 12
    Part.ArcOfCircle(Part.Circle(V(33.424007, 22.062486, 0), V(0, 0, 1), 10), math.radians(-159.635865), math.radians(-155.364135)),  # 13
    Part.ArcOfCircle(Part.Circle(V(25.243229, 18.310838, 0), V(0, 0, 1), 1), math.radians(-155.364135), math.radians(-71.514775)),  # 14
    Part.ArcOfCircle(Part.Circle(V(26.352939, 14.991418, 0), V(0, 0, 1), 2.5), math.radians(-18.485225), math.radians(108.485225)),  # 15
    Part.ArcOfCircle(Part.Circle(V(29.672358, 13.881708, 0), V(0, 0, 1), 1), math.radians(161.514775), math.radians(245.364135)),  # 16
    Part.ArcOfCircle(Part.Circle(V(33.424007, 22.062486, 0), V(0, 0, 1), 10), math.radians(-114.635865), math.radians(-110.364135)),  # 17
    Part.ArcOfCircle(Part.Circle(V(30.29214, 13.624986, 0), V(0, 0, 1), 1), math.radians(-110.364135), math.radians(-26.514775)),  # 18
    Part.ArcOfCircle(Part.Circle(V(33.424007, 12.062486, 0), V(0, 0, 1), 2.5), math.radians(26.514775), math.radians(153.485225)),  # 19
    Part.ArcOfCircle(Part.Circle(V(36.555875, 13.624986, 0), V(0, 0, 1), 1), math.radians(-153.485225), math.radians(-69.635865)),  # 20
    Part.ArcOfCircle(Part.Circle(V(33.424007, 22.062486, 0), V(0, 0, 1), 10), math.radians(-69.635865), math.radians(-65.364135)),  # 21
    Part.ArcOfCircle(Part.Circle(V(37.175656, 13.881708, 0), V(0, 0, 1), 1), math.radians(-65.364135), math.radians(18.485225)),  # 22
    Part.ArcOfCircle(Part.Circle(V(40.495075, 14.991418, 0), V(0, 0, 1), 2.5), math.radians(71.514775), math.radians(198.485225)),  # 23
    Part.ArcOfCircle(Part.Circle(V(41.604785, 18.310838, 0), V(0, 0, 1), 1), math.radians(-108.485225), math.radians(-24.635865)),  # 24
    Part.ArcOfCircle(Part.Circle(V(33.424007, 22.062486, 0), V(0, 0, 1), 10), math.radians(-24.635865), math.radians(-20.364135)),  # 25
    Part.ArcOfCircle(Part.Circle(V(41.861507, 18.930619, 0), V(0, 0, 1), 1), math.radians(-20.364135), math.radians(63.485225)),  # 26
    Part.ArcOfCircle(Part.Circle(V(43.424007, 22.062486, 0), V(0, 0, 1), 2.5), math.radians(116.514775), math.radians(243.485225)),  # 27
    Part.ArcOfCircle(Part.Circle(V(41.861507, 25.194354, 0), V(0, 0, 1), 1), math.radians(-63.485225), math.radians(20.364135)),  # 28
    Part.ArcOfCircle(Part.Circle(V(33.424007, 22.062486, 0), V(0, 0, 1), 10), math.radians(20.364135), math.radians(24.635865)),  # 29
    Part.ArcOfCircle(Part.Circle(V(41.604785, 25.814135, 0), V(0, 0, 1), 1), math.radians(24.635865), math.radians(108.485225)),  # 30
    Part.ArcOfCircle(Part.Circle(V(40.495075, 29.133554, 0), V(0, 0, 1), 2.5), math.radians(161.514775), math.radians(288.485225)),  # 31
    Part.Circle(V(33.424007, 22.062486, 0), V(0, 0, 1), 2.6),  # 32
], False)
sketch13.addConstraint([
    Sketcher.Constraint("Tangent", 0, 2, 1, 1),
    Sketcher.Constraint("Tangent", 1, 2, 2, 1),
    Sketcher.Constraint("Tangent", 2, 2, 3, 2),
    Sketcher.Constraint("Tangent", 3, 1, 4, 1),
    Sketcher.Constraint("Tangent", 4, 2, 5, 1),
    Sketcher.Constraint("Tangent", 5, 2, 6, 1),
    Sketcher.Constraint("Tangent", 6, 2, 7, 2),
    Sketcher.Constraint("Tangent", 7, 1, 8, 1),
    Sketcher.Constraint("Tangent", 8, 2, 9, 1),
    Sketcher.Constraint("Tangent", 9, 2, 10, 1),
    Sketcher.Constraint("Tangent", 10, 2, 11, 2),
    Sketcher.Constraint("Tangent", 11, 1, 12, 1),
    Sketcher.Constraint("Tangent", 12, 2, 13, 1),
    Sketcher.Constraint("Tangent", 13, 2, 14, 1),
    Sketcher.Constraint("Tangent", 14, 2, 15, 2),
    Sketcher.Constraint("Tangent", 15, 1, 16, 1),
    Sketcher.Constraint("Tangent", 16, 2, 17, 1),
    Sketcher.Constraint("Tangent", 17, 2, 18, 1),
    Sketcher.Constraint("Tangent", 18, 2, 19, 2),
    Sketcher.Constraint("Tangent", 19, 1, 20, 1),
    Sketcher.Constraint("Tangent", 20, 2, 21, 1),
    Sketcher.Constraint("Tangent", 21, 2, 22, 1),
    Sketcher.Constraint("Tangent", 22, 2, 23, 2),
    Sketcher.Constraint("Tangent", 23, 1, 24, 1),
    Sketcher.Constraint("Tangent", 24, 2, 25, 1),
    Sketcher.Constraint("Tangent", 25, 2, 26, 1),
    Sketcher.Constraint("Tangent", 26, 2, 27, 2),
    Sketcher.Constraint("Tangent", 27, 1, 28, 1),
    Sketcher.Constraint("Tangent", 28, 2, 29, 1),
    Sketcher.Constraint("Tangent", 29, 2, 30, 1),
    Sketcher.Constraint("Tangent", 30, 2, 31, 2),
    Sketcher.Constraint("Tangent", 31, 1, 0, 1),
    Sketcher.Constraint("Coincident", 5, 3, 1, 3),
    Sketcher.Constraint("Coincident", 9, 3, 1, 3),
    Sketcher.Constraint("Coincident", 13, 3, 1, 3),
    Sketcher.Constraint("Coincident", 17, 3, 1, 3),
    Sketcher.Constraint("Coincident", 21, 3, 1, 3),
    Sketcher.Constraint("Coincident", 25, 3, 1, 3),
    Sketcher.Constraint("Coincident", 29, 3, 1, 3),
    Sketcher.Constraint("Coincident", 32, 3, 1, 3),
    Sketcher.Constraint("Equal", 0, 2),
    Sketcher.Constraint("Equal", 2, 4),
    Sketcher.Constraint("Equal", 1, 5),
    Sketcher.Constraint("Equal", 4, 6),
    Sketcher.Constraint("Equal", 3, 7),
    Sketcher.Constraint("Equal", 6, 8),
    Sketcher.Constraint("Equal", 5, 9),
    Sketcher.Constraint("Equal", 8, 10),
    Sketcher.Constraint("Equal", 7, 11),
    Sketcher.Constraint("Equal", 10, 12),
    Sketcher.Constraint("Equal", 9, 13),
    Sketcher.Constraint("Equal", 12, 14),
    Sketcher.Constraint("Equal", 11, 15),
    Sketcher.Constraint("Equal", 14, 16),
    Sketcher.Constraint("Equal", 13, 17),
    Sketcher.Constraint("Equal", 16, 18),
    Sketcher.Constraint("Equal", 15, 19),
    Sketcher.Constraint("Equal", 18, 20),
    Sketcher.Constraint("Equal", 17, 21),
    Sketcher.Constraint("Equal", 20, 22),
    Sketcher.Constraint("Equal", 19, 23),
    Sketcher.Constraint("Equal", 22, 24),
    Sketcher.Constraint("Equal", 21, 25),
    Sketcher.Constraint("Equal", 24, 26),
    Sketcher.Constraint("Equal", 23, 27),
    Sketcher.Constraint("Equal", 26, 28),
    Sketcher.Constraint("Equal", 25, 29),
    Sketcher.Constraint("Equal", 28, 30),
    Sketcher.Constraint("Equal", 27, 31),
    Sketcher.Constraint("Horizontal", 2, 3, 4, 3),
    Sketcher.Constraint("Horizontal", 0, 3, 6, 3),
    Sketcher.Constraint("Horizontal", 9, 3, 11, 3),
    Sketcher.Constraint("Horizontal", 18, 3, 20, 3),
    Sketcher.Constraint("Horizontal", 16, 3, 22, 3),
    Sketcher.Constraint("Horizontal", 15, 3, 23, 3),
    Sketcher.Constraint("Horizontal", 12, 3, 26, 3),
    Sketcher.Constraint("Horizontal", 25, 3, 27, 3),
    Sketcher.Constraint("Horizontal", 8, 3, 30, 3),
    Sketcher.Constraint("Vertical", 8, 3, 14, 3),
    Sketcher.Constraint("Vertical", 7, 3, 15, 3),
    Sketcher.Constraint("Vertical", 4, 3, 18, 3),
    Sketcher.Constraint("Radius", 0, 1.0),
    Sketcher.Constraint("Radius", 1, 10.0),
    Sketcher.Constraint("Diameter", 32, 5.2),
    Sketcher.Constraint("Radius", 3, 2.5),
    Sketcher.Constraint("DistanceX", -1, 1, 4, 3, 30.29214),
    Sketcher.Constraint("DistanceX", -1, 1, 6, 3, 29.672358),
    Sketcher.Constraint("DistanceX", -1, 1, 7, 3, 26.352939),
    Sketcher.Constraint("DistanceX", -1, 1, 8, 3, 25.243229),
    Sketcher.Constraint("DistanceY", -1, 1, 12, 3, 18.930619),
    Sketcher.Constraint("DistanceY", -1, 1, 15, 3, 14.991418),
])
pad7 = body5.newObject("PartDesign::Pad", "Pad006")
pad7.Profile = sketch13
pad7.Length = 6

# Sketch on XY plane
sketch14 = body5.newObject("Sketcher::SketchObject", "Sketch013")
sketch14.AttachmentSupport = (doc.getObject("XY_Plane004"), [""])
sketch14.MapMode = "FlatFace"
sketch14.AttachmentOffset = App.Placement(V(0, 0, 6), App.Rotation())
sketch14.addGeometry([
    Part.Circle(V(33.424007, 22.062486, 0), V(0, 0, 1), 6.5),
    Part.Circle(V(33.424007, 22.062486, 0), V(0, 0, 1), 2.6),
], False)
sketch14.addConstraint([
    Sketcher.Constraint("Coincident", 1, 3, 0, 3),
    Sketcher.Constraint("Diameter", 0, 13.0),
    Sketcher.Constraint("Diameter", 1, 5.2),
    Sketcher.Constraint("DistanceX", -1, 1, 0, 3, 33.424007),
    Sketcher.Constraint("DistanceY", -1, 1, 0, 3, 22.062486),
])
pad8 = body5.newObject("PartDesign::Pad", "Pad007")
pad8.Profile = sketch14
pad8.Length = 1

doc.recompute()
